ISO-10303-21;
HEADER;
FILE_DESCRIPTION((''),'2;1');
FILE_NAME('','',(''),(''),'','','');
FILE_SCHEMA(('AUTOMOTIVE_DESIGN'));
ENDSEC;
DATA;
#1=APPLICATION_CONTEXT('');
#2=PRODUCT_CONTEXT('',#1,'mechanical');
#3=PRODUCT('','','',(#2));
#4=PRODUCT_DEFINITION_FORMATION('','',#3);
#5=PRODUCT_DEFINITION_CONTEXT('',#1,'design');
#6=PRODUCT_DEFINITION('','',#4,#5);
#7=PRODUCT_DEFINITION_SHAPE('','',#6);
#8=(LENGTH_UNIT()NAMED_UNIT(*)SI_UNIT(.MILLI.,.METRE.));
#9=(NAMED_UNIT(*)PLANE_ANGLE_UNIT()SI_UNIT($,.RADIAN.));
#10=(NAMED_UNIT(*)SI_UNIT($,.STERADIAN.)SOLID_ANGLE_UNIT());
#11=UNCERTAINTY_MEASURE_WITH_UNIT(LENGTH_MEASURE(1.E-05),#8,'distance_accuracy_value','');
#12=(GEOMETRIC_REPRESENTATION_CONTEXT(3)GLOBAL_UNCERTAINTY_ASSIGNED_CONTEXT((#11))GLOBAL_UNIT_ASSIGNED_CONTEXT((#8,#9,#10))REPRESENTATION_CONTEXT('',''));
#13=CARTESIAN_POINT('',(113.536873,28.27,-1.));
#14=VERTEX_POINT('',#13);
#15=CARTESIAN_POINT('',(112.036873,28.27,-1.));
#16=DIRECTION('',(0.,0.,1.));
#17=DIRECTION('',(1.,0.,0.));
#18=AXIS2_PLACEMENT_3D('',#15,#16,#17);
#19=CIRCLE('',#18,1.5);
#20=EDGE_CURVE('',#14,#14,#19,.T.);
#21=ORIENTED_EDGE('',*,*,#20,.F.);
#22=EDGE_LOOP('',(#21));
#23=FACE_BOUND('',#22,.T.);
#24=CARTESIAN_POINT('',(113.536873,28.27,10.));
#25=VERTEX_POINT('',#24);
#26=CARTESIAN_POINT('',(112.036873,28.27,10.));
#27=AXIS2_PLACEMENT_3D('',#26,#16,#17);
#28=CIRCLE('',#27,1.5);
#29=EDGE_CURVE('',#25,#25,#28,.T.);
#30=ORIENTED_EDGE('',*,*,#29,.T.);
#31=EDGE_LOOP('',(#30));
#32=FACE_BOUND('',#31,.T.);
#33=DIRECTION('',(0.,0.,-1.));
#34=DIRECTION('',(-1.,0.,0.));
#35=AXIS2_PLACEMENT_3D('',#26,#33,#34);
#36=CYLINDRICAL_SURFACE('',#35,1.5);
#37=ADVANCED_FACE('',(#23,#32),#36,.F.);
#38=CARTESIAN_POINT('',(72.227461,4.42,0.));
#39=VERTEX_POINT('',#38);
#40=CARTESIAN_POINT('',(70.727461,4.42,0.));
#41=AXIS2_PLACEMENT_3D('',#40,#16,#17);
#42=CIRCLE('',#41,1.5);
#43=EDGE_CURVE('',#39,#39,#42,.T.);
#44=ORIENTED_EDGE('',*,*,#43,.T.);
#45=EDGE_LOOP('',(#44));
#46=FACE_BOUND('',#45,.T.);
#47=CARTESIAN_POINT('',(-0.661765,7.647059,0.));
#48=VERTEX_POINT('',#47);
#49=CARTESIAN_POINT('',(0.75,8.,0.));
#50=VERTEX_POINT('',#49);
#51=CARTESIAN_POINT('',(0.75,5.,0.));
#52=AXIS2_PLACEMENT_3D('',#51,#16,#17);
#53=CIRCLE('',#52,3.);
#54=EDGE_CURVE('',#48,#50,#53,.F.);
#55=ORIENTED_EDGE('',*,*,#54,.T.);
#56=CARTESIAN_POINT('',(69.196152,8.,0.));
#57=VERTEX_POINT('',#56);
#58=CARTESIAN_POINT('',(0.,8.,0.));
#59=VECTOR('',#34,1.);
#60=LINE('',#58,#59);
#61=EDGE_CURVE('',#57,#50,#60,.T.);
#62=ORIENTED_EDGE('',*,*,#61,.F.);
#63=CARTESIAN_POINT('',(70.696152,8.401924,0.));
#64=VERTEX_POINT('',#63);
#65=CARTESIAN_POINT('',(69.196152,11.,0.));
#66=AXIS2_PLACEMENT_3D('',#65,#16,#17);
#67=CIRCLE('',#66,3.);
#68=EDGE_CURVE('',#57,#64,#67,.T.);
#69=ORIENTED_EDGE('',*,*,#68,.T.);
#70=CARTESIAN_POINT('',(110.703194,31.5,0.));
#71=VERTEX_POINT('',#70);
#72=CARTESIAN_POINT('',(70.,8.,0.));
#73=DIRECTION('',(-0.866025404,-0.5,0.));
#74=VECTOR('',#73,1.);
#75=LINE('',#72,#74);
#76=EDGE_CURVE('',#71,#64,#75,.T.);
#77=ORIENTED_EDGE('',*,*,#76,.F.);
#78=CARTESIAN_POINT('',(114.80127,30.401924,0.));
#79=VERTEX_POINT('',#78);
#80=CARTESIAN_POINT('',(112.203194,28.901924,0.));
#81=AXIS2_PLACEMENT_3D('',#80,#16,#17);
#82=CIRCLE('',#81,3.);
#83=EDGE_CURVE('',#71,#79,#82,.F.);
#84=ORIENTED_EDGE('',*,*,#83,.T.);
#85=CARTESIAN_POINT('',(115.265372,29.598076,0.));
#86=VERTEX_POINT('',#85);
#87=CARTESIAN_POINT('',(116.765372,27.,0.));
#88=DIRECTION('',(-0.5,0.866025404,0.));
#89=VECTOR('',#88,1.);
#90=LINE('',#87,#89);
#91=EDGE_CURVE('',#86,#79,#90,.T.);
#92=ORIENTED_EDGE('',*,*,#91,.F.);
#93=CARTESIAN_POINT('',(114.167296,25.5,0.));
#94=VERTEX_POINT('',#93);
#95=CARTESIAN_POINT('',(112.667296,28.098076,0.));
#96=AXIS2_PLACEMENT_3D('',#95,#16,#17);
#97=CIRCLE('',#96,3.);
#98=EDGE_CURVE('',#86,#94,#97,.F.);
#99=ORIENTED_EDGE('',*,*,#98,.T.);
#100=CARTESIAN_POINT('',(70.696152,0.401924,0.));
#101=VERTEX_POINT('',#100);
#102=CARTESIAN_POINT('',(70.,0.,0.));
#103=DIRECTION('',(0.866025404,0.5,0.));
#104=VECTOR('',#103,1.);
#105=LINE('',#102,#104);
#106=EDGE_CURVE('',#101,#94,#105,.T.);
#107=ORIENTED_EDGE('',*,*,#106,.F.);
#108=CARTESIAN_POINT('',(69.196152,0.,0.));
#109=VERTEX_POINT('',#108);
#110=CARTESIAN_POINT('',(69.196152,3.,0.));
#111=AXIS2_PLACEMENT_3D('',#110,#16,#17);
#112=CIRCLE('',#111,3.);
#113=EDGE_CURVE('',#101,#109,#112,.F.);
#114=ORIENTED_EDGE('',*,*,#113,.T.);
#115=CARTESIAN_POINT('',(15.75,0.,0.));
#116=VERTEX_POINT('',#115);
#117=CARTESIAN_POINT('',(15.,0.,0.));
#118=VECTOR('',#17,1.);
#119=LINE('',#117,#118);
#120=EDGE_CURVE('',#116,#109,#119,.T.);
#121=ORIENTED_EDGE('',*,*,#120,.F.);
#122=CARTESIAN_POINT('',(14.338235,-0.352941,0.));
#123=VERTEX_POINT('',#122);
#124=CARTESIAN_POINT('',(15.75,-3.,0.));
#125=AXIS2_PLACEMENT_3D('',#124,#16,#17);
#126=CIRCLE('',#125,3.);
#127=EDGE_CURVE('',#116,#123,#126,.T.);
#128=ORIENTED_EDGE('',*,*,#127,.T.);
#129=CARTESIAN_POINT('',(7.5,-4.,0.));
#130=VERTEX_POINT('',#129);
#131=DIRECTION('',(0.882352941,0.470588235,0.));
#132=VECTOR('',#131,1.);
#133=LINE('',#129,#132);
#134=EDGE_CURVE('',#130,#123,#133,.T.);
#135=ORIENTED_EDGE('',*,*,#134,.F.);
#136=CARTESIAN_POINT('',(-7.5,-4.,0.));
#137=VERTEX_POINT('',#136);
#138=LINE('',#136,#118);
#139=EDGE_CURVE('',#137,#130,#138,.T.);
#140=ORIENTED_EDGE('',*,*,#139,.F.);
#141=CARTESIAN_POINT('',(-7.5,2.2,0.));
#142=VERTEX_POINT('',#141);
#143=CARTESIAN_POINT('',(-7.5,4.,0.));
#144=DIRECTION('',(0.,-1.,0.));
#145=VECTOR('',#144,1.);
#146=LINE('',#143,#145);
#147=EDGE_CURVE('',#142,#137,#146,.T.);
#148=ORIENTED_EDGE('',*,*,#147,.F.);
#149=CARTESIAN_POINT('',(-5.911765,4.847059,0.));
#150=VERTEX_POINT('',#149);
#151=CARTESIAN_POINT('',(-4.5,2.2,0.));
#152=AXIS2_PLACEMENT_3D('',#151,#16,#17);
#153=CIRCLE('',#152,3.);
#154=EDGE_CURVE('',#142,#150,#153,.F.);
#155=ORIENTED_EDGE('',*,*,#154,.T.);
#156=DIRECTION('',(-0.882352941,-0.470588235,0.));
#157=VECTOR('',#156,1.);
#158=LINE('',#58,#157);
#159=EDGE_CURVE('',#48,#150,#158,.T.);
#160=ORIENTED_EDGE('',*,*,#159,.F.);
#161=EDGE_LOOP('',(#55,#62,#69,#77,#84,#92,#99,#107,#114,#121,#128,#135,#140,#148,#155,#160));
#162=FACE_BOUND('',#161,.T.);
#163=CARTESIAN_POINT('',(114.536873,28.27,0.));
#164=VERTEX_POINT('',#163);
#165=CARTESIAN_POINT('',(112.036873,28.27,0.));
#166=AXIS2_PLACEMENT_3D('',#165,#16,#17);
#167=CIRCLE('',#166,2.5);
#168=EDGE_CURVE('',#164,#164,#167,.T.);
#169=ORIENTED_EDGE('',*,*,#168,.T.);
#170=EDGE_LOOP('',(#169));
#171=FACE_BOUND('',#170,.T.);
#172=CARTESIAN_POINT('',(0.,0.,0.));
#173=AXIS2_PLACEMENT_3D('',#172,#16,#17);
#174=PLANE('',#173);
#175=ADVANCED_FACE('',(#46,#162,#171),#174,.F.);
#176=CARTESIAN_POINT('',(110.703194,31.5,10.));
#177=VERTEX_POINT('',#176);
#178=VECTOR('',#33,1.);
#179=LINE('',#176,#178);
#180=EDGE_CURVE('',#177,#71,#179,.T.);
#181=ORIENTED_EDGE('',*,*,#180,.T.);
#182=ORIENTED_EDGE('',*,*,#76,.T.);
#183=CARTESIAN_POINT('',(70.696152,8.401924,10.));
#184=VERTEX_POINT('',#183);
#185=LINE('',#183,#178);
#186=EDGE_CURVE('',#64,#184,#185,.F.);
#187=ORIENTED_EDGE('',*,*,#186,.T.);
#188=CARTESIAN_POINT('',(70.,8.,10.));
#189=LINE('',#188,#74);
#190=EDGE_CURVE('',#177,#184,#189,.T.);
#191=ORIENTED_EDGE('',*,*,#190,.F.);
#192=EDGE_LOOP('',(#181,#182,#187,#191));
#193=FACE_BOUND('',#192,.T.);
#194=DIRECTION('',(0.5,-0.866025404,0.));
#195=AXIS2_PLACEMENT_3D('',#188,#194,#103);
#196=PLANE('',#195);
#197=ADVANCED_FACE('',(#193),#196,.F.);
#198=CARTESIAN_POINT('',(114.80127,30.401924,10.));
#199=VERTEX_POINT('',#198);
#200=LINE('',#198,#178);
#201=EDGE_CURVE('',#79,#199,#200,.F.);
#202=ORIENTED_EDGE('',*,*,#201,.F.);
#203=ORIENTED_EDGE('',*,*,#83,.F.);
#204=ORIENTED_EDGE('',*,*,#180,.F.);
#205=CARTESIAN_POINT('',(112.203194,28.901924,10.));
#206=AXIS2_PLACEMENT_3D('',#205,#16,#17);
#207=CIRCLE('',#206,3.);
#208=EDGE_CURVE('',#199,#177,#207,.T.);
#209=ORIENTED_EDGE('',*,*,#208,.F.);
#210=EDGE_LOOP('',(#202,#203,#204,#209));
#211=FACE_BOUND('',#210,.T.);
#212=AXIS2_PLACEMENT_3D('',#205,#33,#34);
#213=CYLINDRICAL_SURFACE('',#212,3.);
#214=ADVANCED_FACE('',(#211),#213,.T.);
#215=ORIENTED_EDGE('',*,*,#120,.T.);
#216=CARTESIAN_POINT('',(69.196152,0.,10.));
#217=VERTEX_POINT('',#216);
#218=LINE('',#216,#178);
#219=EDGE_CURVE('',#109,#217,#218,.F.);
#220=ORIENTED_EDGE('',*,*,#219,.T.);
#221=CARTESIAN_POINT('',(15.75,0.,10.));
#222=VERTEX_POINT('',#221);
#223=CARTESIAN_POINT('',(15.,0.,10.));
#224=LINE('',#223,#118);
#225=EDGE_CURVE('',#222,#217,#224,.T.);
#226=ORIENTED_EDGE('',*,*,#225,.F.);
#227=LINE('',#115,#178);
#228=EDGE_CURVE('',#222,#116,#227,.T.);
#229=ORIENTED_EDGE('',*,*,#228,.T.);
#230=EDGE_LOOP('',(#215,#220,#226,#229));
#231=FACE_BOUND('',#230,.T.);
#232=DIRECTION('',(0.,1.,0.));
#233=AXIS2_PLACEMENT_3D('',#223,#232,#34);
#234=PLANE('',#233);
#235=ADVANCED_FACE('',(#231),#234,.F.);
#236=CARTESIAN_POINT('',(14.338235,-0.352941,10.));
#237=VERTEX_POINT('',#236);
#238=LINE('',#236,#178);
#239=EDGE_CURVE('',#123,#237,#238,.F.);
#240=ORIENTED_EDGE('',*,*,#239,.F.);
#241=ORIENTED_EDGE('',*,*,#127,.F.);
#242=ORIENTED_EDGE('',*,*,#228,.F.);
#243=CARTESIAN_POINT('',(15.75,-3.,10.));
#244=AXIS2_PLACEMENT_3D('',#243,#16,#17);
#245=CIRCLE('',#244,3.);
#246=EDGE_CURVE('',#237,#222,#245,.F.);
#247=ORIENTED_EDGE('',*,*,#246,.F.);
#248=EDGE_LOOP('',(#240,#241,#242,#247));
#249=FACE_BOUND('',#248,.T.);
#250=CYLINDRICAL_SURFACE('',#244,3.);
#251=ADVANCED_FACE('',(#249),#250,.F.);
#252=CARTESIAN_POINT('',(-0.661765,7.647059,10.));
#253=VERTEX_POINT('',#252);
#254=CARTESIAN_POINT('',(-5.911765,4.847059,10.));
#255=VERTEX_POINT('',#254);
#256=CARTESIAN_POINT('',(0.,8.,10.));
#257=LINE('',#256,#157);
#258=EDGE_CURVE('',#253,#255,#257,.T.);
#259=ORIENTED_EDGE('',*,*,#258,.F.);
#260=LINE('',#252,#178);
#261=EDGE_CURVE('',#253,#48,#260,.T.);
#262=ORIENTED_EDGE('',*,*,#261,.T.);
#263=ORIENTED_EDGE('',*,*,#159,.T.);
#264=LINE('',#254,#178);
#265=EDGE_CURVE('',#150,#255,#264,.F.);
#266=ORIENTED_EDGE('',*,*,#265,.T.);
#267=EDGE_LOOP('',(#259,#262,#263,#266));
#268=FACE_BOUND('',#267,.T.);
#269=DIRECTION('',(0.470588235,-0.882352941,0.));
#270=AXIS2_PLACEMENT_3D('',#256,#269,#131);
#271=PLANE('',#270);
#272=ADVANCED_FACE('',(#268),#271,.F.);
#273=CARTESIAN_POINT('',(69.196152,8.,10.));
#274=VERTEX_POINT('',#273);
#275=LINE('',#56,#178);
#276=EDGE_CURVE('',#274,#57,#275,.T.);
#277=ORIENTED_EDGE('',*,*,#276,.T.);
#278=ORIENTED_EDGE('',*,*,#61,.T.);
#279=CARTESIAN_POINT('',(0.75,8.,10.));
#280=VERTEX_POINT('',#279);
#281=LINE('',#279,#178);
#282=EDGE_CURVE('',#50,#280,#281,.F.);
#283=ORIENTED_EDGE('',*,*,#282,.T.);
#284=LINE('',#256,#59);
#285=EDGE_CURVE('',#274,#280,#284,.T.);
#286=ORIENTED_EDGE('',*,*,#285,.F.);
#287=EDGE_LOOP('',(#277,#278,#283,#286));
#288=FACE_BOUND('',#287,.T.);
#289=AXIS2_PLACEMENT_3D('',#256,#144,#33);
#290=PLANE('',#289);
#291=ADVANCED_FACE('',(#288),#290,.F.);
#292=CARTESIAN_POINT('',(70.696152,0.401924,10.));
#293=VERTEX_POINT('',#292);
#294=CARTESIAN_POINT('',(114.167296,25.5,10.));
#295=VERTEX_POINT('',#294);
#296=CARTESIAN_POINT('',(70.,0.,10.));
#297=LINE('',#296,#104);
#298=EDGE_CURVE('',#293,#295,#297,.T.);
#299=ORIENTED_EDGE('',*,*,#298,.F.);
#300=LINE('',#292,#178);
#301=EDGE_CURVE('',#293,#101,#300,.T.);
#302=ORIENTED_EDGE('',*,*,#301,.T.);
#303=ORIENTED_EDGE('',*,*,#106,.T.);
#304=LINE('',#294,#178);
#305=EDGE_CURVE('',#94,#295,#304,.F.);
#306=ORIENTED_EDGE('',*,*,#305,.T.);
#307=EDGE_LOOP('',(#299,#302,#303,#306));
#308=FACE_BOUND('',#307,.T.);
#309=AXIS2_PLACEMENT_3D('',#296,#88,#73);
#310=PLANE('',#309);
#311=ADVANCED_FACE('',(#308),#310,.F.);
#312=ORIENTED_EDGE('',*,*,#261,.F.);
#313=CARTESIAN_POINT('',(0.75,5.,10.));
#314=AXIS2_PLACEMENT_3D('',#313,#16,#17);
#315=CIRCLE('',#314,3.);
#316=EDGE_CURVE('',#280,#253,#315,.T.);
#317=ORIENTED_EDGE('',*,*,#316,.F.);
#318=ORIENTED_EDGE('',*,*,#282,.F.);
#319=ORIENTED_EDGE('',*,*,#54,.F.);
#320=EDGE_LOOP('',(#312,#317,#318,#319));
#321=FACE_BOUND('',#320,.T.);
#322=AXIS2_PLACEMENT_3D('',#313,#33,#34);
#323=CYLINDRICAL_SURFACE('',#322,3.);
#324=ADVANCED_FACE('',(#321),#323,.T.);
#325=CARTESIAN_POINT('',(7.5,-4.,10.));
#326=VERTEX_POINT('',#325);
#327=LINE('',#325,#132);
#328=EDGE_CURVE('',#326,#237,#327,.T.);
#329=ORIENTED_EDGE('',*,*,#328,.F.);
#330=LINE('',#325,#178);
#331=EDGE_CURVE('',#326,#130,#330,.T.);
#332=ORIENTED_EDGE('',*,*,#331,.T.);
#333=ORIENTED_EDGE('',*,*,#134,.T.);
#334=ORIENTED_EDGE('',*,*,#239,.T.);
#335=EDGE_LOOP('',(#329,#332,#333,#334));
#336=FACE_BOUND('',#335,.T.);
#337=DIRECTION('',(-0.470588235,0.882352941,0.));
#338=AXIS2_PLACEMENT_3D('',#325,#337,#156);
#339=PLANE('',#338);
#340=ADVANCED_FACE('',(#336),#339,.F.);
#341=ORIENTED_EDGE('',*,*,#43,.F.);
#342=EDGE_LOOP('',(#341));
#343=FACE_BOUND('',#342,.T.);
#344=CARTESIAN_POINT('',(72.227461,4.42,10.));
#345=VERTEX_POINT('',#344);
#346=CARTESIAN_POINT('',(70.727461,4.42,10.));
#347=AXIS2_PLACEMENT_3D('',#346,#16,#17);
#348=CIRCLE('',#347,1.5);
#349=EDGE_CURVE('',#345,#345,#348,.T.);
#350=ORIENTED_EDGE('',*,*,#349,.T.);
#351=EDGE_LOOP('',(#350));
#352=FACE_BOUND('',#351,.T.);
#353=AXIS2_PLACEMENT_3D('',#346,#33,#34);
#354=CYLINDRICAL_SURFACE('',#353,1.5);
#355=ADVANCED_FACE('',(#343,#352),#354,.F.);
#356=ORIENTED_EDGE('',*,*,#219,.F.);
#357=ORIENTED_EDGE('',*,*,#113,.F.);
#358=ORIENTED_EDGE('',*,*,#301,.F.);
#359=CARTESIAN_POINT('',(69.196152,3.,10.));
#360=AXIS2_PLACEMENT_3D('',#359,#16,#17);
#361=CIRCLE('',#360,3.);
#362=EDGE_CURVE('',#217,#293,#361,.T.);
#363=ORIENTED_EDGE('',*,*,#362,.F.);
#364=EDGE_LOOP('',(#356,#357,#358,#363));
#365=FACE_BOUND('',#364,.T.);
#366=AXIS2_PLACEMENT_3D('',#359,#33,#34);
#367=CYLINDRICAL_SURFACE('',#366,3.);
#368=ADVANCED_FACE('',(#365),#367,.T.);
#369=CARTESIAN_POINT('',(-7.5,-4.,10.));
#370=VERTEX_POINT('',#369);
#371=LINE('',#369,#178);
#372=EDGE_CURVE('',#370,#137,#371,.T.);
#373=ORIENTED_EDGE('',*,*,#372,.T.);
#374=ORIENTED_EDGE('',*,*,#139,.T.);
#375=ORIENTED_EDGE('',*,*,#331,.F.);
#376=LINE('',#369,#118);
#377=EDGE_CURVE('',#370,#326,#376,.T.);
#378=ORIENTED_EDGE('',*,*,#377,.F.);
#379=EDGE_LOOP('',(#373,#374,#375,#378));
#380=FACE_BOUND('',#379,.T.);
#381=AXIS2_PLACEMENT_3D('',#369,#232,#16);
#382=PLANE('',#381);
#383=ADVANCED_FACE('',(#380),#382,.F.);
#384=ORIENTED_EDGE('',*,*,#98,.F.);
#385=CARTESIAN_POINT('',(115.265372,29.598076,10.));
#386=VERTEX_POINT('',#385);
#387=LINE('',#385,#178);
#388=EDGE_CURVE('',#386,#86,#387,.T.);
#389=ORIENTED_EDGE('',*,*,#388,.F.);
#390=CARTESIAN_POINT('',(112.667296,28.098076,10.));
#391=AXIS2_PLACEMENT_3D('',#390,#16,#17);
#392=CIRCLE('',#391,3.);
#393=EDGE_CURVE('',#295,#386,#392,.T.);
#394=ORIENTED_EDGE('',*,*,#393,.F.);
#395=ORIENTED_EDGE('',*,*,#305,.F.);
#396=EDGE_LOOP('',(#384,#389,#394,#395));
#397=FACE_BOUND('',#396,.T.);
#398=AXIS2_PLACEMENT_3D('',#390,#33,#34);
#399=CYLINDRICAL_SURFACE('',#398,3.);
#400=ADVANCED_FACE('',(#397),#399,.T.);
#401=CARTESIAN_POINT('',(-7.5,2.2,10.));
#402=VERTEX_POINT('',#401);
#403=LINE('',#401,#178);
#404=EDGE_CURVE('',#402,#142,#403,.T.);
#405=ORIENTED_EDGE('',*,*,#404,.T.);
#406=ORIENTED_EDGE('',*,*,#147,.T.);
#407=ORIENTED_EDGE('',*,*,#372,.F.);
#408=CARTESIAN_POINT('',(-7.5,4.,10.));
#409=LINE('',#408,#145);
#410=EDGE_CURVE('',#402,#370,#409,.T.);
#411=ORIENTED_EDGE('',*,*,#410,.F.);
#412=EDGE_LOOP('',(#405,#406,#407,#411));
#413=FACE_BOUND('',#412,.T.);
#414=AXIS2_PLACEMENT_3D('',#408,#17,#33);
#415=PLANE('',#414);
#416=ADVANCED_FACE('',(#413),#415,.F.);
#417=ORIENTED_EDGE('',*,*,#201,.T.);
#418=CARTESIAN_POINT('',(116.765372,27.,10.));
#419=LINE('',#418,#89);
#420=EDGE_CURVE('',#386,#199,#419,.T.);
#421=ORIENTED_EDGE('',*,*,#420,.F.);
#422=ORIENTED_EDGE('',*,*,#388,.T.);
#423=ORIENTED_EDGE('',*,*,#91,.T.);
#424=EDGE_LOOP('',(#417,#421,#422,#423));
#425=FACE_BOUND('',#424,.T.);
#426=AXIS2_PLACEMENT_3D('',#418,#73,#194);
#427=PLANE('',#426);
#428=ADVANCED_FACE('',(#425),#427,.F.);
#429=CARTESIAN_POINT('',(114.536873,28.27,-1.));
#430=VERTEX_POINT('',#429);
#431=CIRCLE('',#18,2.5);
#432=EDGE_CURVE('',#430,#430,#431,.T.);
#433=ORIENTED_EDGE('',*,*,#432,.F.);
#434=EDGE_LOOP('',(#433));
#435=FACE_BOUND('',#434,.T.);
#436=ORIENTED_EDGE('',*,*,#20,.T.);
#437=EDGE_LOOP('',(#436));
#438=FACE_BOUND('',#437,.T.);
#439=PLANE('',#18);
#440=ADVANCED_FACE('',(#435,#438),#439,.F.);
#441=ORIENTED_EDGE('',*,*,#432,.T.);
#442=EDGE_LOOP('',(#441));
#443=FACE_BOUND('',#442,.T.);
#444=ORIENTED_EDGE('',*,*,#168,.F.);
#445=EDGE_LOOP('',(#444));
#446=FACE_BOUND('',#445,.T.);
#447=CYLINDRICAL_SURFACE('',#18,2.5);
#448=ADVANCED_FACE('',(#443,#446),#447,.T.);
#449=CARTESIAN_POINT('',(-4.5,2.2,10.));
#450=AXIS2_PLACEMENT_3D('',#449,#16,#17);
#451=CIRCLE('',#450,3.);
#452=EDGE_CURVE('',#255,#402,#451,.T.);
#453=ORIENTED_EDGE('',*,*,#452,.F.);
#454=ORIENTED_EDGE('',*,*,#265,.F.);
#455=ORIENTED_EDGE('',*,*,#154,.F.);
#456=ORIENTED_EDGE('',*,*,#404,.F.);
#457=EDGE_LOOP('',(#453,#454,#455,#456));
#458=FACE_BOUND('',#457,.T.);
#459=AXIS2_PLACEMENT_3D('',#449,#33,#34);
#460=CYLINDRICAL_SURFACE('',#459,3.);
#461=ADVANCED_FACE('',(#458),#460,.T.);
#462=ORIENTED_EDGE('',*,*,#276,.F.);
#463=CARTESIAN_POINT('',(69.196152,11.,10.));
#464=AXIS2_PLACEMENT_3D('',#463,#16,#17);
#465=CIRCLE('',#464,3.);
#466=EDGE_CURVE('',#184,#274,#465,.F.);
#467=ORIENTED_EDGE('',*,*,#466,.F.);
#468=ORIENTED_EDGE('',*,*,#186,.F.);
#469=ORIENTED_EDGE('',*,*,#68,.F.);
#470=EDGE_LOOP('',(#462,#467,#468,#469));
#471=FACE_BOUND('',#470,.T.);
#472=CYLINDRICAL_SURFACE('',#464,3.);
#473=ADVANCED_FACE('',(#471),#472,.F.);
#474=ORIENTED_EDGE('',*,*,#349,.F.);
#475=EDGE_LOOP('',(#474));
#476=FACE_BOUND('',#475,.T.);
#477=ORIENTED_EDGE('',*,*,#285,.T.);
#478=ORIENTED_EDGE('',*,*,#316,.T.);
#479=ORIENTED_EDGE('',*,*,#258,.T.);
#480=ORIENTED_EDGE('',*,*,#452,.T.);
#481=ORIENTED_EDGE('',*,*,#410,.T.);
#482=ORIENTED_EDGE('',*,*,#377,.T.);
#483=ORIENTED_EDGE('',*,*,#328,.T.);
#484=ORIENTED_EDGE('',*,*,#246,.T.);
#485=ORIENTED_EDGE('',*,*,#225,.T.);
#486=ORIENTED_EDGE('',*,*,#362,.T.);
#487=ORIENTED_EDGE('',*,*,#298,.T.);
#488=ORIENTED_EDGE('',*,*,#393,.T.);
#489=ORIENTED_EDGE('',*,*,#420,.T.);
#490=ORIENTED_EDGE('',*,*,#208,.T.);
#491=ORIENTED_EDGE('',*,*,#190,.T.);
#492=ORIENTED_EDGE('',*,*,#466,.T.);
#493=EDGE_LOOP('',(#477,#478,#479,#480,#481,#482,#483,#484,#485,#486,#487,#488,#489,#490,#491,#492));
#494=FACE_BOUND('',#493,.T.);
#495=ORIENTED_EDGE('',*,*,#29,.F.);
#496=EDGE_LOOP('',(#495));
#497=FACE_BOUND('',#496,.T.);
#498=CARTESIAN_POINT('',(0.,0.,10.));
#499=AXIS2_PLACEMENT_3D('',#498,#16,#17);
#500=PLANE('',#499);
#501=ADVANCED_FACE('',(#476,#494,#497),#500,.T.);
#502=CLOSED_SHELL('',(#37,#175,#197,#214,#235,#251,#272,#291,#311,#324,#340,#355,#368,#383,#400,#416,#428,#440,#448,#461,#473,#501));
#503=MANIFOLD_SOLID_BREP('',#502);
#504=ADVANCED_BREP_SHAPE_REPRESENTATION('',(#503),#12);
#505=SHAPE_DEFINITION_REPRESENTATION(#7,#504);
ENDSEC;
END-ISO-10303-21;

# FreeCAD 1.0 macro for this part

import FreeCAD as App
import Part
import Sketcher

V = App.Vector
Q = App.Units.Quantity


def edges_at(feature, points):
    """Names of the edges that pass closest to the given points."""
    edges = feature.Shape.Edges
    near = lambda p: min(range(len(edges)), key=lambda i: edges[i].distToShape(Part.Vertex(*p))[0])
    return sorted({f"Edge{near(p) + 1}" for p in points})


def add_polygon(sketch, points):
    """Adds a closed chain of lines whose ends are joined by coincident constraints."""
    first, n = sketch.GeometryCount, len(points)
    for a, b in zip(points, points[1:] + points[:1]):
        sketch.addGeometry(Part.LineSegment(App.Vector(*a, 0), App.Vector(*b, 0)), False)
    for i in range(n):
        sketch.addConstraint(Sketcher.Constraint("Coincident", first + i, 2, first + (i + 1) % n, 1))

doc = App.newDocument("Part")
body = doc.addObject("PartDesign::Body", "Body")

# Sketch on XY plane
sketch1 = body.newObject("Sketcher::SketchObject", "Sketch")
sketch1.AttachmentSupport = (doc.getObject("XY_Plane"), [""])
sketch1.MapMode = "FlatFace"
add_polygon(sketch1, [(-7.5, 4), (-7.5, -4), (7.5, -4), (15, 0), (70, 0), (116.8, 27), (113.3, 33), (70, 8), (0, 8)])  # lines 0-8
sketch1.addGeometry(Part.Circle(V(70.7, 4.4, 0), V(0, 0, 1), 1.5), False)  # 9
sketch1.addGeometry(Part.Circle(V(112, 28.3, 0), V(0, 0, 1), 1.5), False)  # 10
sketch1.addConstraint([
    Sketcher.Constraint("Vertical", 0),
    Sketcher.Constraint("Horizontal", 1),
    Sketcher.Constraint("Horizontal", 3),
    Sketcher.Constraint("Horizontal", 7),
    Sketcher.Constraint("Equal", 9, 10),
    Sketcher.Constraint("Symmetric", 1, 2, 8, 2, -1, 1),
    Sketcher.Constraint("PointOnObject", 2, 2, -1),
    Sketcher.Constraint("PointOnObject", 7, 2, -2),
    Sketcher.Constraint("Perpendicular", 4, 5),
    Sketcher.Constraint("Perpendicular", 5, 6),
    Sketcher.Constraint("Parallel", 2, 8),
    Sketcher.Constraint("Vertical", 3, 2, 6, 2),
    Sketcher.Constraint("Equal", 2, 8),
    Sketcher.Constraint("Diameter", 9, 3.0),
    Sketcher.Constraint("DistanceX", 1, 1, 1, 2, 15.0),
    Sketcher.Constraint("DistanceX", 3, 1, 3, 2, 55.0),
    Sketcher.Constraint("DistanceY", 0, 2, 0, 1, 8.0),
    Sketcher.Constraint("Angle", 4, Q("30 deg")),
    Sketcher.Constraint("Distance", 4, 54.0),
    Sketcher.Constraint("DistanceY", -1, 1, 9, 3, 4.42),
    Sketcher.Constraint("DistanceY", -1, 1, 10, 3, 28.27),
    Sketcher.Constraint("DistanceX", 10, 3, 4, 2, 4.728499),
    Sketcher.Constraint("DistanceX", -1, 1, 9, 3, 70.727461),
])
pad1 = body.newObject("PartDesign::Pad", "Pad")
pad1.Profile = sketch1
pad1.Length = 10
doc.recompute()

fillet = body.newObject("PartDesign::Fillet", "Fillet")
fillet.Base = (pad1, edges_at(pad1, [
    (-7.5, 4, 5),
    (0, 8, 5),
    (70, 8, 5),
    (113.301, 33, 5),
    (116.765, 27, 5),
    (70, 0, 5),
    (15, 0, 5),
]))
fillet.Radius = 3

# Sketch on XY plane
sketch2 = body.newObject("Sketcher::SketchObject", "Sketch001")
sketch2.AttachmentSupport = (doc.getObject("XY_Plane"), [""])
sketch2.MapMode = "FlatFace"
sketch2.AttachmentOffset = App.Placement(V(0, 0, -1), App.Rotation())
sketch2.addGeometry([
    Part.Circle(V(112, 28.3, 0), V(0, 0, 1), 2.5),
    Part.Circle(V(112, 28.3, 0), V(0, 0, 1), 1.5),
], False)
sketch2.addConstraint([
    Sketcher.Constraint("Coincident", 1, 3, 0, 3),
    Sketcher.Constraint("Diameter", 0, 5.0),
    Sketcher.Constraint("Diameter", 1, 3.0),
    Sketcher.Constraint("DistanceY", -1, 1, 0, 3, 28.27),
    Sketcher.Constraint("DistanceX", -1, 1, 0, 3, 112.036873),
])
pad2 = body.newObject("PartDesign::Pad", "Pad001")
pad2.Profile = sketch2
pad2.Length = 11

doc.recompute()
